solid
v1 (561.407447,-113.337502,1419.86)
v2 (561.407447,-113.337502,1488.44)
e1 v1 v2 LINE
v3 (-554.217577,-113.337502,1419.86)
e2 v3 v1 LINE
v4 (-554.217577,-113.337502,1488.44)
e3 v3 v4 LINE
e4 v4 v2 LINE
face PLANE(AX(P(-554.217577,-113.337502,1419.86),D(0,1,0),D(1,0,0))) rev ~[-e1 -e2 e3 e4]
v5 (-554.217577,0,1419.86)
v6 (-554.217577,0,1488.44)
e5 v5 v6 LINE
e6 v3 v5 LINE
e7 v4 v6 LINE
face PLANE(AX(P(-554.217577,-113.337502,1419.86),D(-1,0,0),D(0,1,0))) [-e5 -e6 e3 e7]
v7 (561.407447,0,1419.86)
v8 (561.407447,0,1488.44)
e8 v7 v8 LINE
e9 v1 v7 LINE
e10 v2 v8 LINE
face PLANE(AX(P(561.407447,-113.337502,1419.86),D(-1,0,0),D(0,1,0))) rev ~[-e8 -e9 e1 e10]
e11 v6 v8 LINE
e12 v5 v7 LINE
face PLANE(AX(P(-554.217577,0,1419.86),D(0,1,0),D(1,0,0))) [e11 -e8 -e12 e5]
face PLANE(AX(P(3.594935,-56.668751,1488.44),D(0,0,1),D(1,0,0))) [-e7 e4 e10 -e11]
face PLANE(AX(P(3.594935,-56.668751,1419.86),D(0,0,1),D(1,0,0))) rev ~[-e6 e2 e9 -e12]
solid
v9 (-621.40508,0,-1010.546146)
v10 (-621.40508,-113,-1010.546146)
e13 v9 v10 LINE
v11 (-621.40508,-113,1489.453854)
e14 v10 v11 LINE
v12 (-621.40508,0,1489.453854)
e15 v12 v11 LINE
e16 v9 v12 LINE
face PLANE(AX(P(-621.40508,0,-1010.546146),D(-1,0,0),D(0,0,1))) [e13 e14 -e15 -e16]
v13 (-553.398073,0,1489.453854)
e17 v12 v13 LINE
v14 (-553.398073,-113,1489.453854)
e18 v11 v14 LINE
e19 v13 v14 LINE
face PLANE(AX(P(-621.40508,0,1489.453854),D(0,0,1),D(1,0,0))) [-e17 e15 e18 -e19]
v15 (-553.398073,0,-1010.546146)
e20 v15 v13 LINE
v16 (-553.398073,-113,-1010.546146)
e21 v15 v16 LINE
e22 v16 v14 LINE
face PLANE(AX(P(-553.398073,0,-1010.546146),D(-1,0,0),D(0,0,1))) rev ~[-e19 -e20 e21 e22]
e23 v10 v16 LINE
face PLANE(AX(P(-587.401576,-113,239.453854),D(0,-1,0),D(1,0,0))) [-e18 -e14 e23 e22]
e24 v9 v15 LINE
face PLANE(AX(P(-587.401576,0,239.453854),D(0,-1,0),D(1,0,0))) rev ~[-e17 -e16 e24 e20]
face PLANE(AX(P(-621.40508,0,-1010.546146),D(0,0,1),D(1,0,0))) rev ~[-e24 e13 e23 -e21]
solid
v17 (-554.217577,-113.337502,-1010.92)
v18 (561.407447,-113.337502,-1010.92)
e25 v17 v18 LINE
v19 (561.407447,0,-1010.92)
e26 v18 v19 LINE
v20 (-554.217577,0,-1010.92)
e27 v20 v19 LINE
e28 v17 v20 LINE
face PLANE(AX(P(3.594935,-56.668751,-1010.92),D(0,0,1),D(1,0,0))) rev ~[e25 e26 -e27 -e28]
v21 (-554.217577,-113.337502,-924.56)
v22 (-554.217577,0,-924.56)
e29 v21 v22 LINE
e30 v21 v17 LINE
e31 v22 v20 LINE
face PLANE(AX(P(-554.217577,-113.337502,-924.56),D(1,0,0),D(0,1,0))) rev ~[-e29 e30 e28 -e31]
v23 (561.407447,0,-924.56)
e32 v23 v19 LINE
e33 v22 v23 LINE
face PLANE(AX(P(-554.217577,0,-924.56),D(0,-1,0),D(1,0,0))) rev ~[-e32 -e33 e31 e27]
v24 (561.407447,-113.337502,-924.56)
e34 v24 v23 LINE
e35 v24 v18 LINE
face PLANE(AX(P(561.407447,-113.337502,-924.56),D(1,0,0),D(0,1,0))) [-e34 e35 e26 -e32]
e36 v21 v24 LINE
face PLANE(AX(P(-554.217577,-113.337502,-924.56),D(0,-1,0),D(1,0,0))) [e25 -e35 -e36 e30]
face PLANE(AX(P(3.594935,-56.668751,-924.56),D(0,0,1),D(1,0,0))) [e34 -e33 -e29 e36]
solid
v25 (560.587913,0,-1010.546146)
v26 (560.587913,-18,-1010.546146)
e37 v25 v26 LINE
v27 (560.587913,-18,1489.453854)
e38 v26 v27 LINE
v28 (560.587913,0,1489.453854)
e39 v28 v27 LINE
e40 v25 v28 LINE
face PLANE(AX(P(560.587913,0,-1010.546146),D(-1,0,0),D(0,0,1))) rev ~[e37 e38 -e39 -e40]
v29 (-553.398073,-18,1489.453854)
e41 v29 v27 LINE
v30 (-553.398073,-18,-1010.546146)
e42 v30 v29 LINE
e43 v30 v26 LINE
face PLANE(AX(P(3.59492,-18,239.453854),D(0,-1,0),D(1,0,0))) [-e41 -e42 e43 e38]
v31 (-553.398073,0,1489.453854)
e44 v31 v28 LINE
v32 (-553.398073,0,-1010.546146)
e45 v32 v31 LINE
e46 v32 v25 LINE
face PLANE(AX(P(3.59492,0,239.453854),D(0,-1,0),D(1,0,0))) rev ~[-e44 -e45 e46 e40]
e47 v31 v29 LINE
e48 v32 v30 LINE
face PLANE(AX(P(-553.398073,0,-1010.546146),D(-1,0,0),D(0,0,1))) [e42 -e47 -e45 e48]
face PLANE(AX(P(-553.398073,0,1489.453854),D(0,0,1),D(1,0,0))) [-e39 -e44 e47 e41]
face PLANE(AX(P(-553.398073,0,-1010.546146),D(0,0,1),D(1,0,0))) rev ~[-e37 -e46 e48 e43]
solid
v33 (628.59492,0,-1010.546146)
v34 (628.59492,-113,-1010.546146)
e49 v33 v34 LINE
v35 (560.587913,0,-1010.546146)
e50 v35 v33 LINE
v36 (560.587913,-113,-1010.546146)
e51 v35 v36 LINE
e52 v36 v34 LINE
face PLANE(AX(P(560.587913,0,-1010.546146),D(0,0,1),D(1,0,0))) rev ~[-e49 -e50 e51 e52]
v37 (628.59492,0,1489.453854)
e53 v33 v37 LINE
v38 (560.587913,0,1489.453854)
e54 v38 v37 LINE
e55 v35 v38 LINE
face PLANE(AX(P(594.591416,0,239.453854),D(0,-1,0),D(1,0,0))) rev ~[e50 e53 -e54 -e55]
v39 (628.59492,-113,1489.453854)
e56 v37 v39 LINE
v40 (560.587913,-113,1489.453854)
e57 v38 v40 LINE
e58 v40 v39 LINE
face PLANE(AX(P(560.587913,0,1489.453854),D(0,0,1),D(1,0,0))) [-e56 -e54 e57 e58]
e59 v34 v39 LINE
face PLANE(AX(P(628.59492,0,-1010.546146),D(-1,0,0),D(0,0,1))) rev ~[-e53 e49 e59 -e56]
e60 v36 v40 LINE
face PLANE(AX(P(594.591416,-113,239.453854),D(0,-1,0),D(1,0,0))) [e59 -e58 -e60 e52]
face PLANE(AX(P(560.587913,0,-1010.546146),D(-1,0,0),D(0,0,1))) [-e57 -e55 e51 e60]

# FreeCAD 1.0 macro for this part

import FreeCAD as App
import Part
import Sketcher
Q = App.Units.Quantity

doc = App.newDocument("Part")
body = doc.addObject("PartDesign::Body", "Body")

# Sketch on XZ plane
sketch1 = doc.addObject("Sketcher::SketchObject", "Sketch")
body.addObject(sketch1)
sketch1.AttachmentSupport = (doc.XZ_Plane, [""])
sketch1.MapMode = "FlatFace"
sketch1.addGeometry(Part.LineSegment(App.Vector(-621.40508, 1489.453854, 0), App.Vector(-621.40508, -1010.546146, 0)), False)
sketch1.addGeometry(Part.LineSegment(App.Vector(-621.40508, -1010.546146, 0), App.Vector(-553.398073, -1010.546146, 0)), False)
sketch1.addGeometry(Part.LineSegment(App.Vector(-553.398073, -1010.546146, 0), App.Vector(-553.398073, 1489.453854, 0)), False)
sketch1.addGeometry(Part.LineSegment(App.Vector(-553.398073, 1489.453854, 0), App.Vector(-621.40508, 1489.453854, 0)), False)
sketch1.addConstraint(Sketcher.Constraint("Coincident", 0, 2, 1, 1))
sketch1.addConstraint(Sketcher.Constraint("Coincident", 1, 2, 2, 1))
sketch1.addConstraint(Sketcher.Constraint("Coincident", 2, 2, 3, 1))
sketch1.addConstraint(Sketcher.Constraint("Coincident", 3, 2, 0, 1))
sketch1.addConstraint(Sketcher.Constraint("Vertical", 0))
sketch1.addConstraint(Sketcher.Constraint("Horizontal", 1))
sketch1.addConstraint(Sketcher.Constraint("Vertical", 2))
sketch1.addConstraint(Sketcher.Constraint("Horizontal", 3))
sketch1.addConstraint(Sketcher.Constraint("DistanceY", 0, 2, 0, 1, Q("2500 mm")))
sketch1.addConstraint(Sketcher.Constraint("DistanceX", 1, 1, 1, 2, Q("68.007007 mm")))
sketch1.addConstraint(Sketcher.Constraint("DistanceX", 0, 2, -1, 1, Q("621.40508 mm")))
sketch1.addConstraint(Sketcher.Constraint("DistanceY", 0, 2, -1, 1, Q("1010.546146 mm")))
pad1 = doc.addObject("PartDesign::Pad", "Pad")
body.addObject(pad1)
pad1.Profile = sketch1
pad1.Length = 113
body2 = doc.addObject("PartDesign::Body", "Body001")

# Sketch on XZ plane
sketch2 = doc.addObject("Sketcher::SketchObject", "Sketch001")
body2.addObject(sketch2)
sketch2.AttachmentSupport = (doc.getObject("XZ_Plane001"), [""])
sketch2.MapMode = "FlatFace"
sketch2.addGeometry(Part.LineSegment(App.Vector(560.587913, 1489.453854, 0), App.Vector(560.587913, -1010.546146, 0)), False)
sketch2.addGeometry(Part.LineSegment(App.Vector(560.587913, -1010.546146, 0), App.Vector(628.59492, -1010.546146, 0)), False)
sketch2.addGeometry(Part.LineSegment(App.Vector(628.59492, -1010.546146, 0), App.Vector(628.59492, 1489.453854, 0)), False)
sketch2.addGeometry(Part.LineSegment(App.Vector(628.59492, 1489.453854, 0), App.Vector(560.587913, 1489.453854, 0)), False)
sketch2.addConstraint(Sketcher.Constraint("Coincident", 0, 2, 1, 1))
sketch2.addConstraint(Sketcher.Constraint("Coincident", 1, 2, 2, 1))
sketch2.addConstraint(Sketcher.Constraint("Coincident", 2, 2, 3, 1))
sketch2.addConstraint(Sketcher.Constraint("Coincident", 3, 2, 0, 1))
sketch2.addConstraint(Sketcher.Constraint("Vertical", 0))
sketch2.addConstraint(Sketcher.Constraint("Horizontal", 1))
sketch2.addConstraint(Sketcher.Constraint("Vertical", 2))
sketch2.addConstraint(Sketcher.Constraint("Horizontal", 3))
sketch2.addConstraint(Sketcher.Constraint("DistanceY", 0, 2, 0, 1, Q("2500 mm")))
sketch2.addConstraint(Sketcher.Constraint("DistanceX", 1, 1, 1, 2, Q("68.007007 mm")))
sketch2.addConstraint(Sketcher.Constraint("DistanceX", -1, 1, 1, 2, Q("628.59492 mm")))
sketch2.addConstraint(Sketcher.Constraint("DistanceY", 0, 2, -1, 1, Q("1010.546146 mm")))
pad2 = doc.addObject("PartDesign::Pad", "Pad001")
body2.addObject(pad2)
pad2.Profile = sketch2
pad2.Length = 113
body3 = doc.addObject("PartDesign::Body", "Body002")

# Sketch on XZ plane
sketch3 = doc.addObject("Sketcher::SketchObject", "Sketch002")
body3.addObject(sketch3)
sketch3.AttachmentSupport = (doc.getObject("XZ_Plane002"), [""])
sketch3.MapMode = "FlatFace"
sketch3.addGeometry(Part.LineSegment(App.Vector(-553.398073, 1489.453854, 0), App.Vector(-553.398073, -1010.546146, 0)), False)
sketch3.addGeometry(Part.LineSegment(App.Vector(-553.398073, -1010.546146, 0), App.Vector(560.587913, -1010.546146, 0)), False)
sketch3.addGeometry(Part.LineSegment(App.Vector(560.587913, -1010.546146, 0), App.Vector(560.587913, 1489.453854, 0)), False)
sketch3.addGeometry(Part.LineSegment(App.Vector(560.587913, 1489.453854, 0), App.Vector(-553.398073, 1489.453854, 0)), False)
sketch3.addConstraint(Sketcher.Constraint("Coincident", 0, 2, 1, 1))
sketch3.addConstraint(Sketcher.Constraint("Coincident", 1, 2, 2, 1))
sketch3.addConstraint(Sketcher.Constraint("Coincident", 2, 2, 3, 1))
sketch3.addConstraint(Sketcher.Constraint("Coincident", 3, 2, 0, 1))
sketch3.addConstraint(Sketcher.Constraint("Vertical", 0))
sketch3.addConstraint(Sketcher.Constraint("Horizontal", 1))
sketch3.addConstraint(Sketcher.Constraint("Vertical", 2))
sketch3.addConstraint(Sketcher.Constraint("Horizontal", 3))
sketch3.addConstraint(Sketcher.Constraint("DistanceY", 0, 2, 0, 1, Q("2500 mm")))
sketch3.addConstraint(Sketcher.Constraint("DistanceX", 1, 1, 1, 2, Q("1113.985986 mm")))
sketch3.addConstraint(Sketcher.Constraint("DistanceX", 0, 2, -1, 1, Q("553.398073 mm")))
sketch3.addConstraint(Sketcher.Constraint("DistanceY", 0, 2, -1, 1, Q("1010.546146 mm")))
pad3 = doc.addObject("PartDesign::Pad", "Pad002")
body3.addObject(pad3)
pad3.Profile = sketch3
pad3.Length = 18
body4 = doc.addObject("PartDesign::Body", "Body003")

# Sketch on XY plane
sketch4 = doc.addObject("Sketcher::SketchObject", "Sketch003")
body4.addObject(sketch4)
sketch4.AttachmentSupport = (doc.getObject("XY_Plane003"), [""])
sketch4.MapMode = "FlatFace"
sketch4.AttachmentOffset = App.Placement(App.Vector(0, 0, 1419.86), App.Rotation())
sketch4.addGeometry(Part.LineSegment(App.Vector(-554.217577, 0, 0), App.Vector(-554.217577, -113.337502, 0)), False)
sketch4.addGeometry(Part.LineSegment(App.Vector(-554.217577, -113.337502, 0), App.Vector(561.407447, -113.337502, 0)), False)
sketch4.addGeometry(Part.LineSegment(App.Vector(561.407447, -113.337502, 0), App.Vector(561.407447, 0, 0)), False)
sketch4.addGeometry(Part.LineSegment(App.Vector(561.407447, 0, 0), App.Vector(-554.217577, 0, 0)), False)
sketch4.addConstraint(Sketcher.Constraint("Coincident", 0, 2, 1, 1))
sketch4.addConstraint(Sketcher.Constraint("Coincident", 1, 2, 2, 1))
sketch4.addConstraint(Sketcher.Constraint("Coincident", 2, 2, 3, 1))
sketch4.addConstraint(Sketcher.Constraint("Coincident", 3, 2, 0, 1))
sketch4.addConstraint(Sketcher.Constraint("Vertical", 0))
sketch4.addConstraint(Sketcher.Constraint("Horizontal", 1))
sketch4.addConstraint(Sketcher.Constraint("Vertical", 2))
sketch4.addConstraint(Sketcher.Constraint("Horizontal", 3))
sketch4.addConstraint(Sketcher.Constraint("PointOnObject", 2, 2, -1))
sketch4.addConstraint(Sketcher.Constraint("DistanceY", 0, 2, 0, 1, Q("113.337502 mm")))
sketch4.addConstraint(Sketcher.Constraint("DistanceX", 1, 1, 1, 2, Q("1115.625024 mm")))
sketch4.addConstraint(Sketcher.Constraint("DistanceX", 0, 2, -1, 1, Q("554.217577 mm")))
pad4 = doc.addObject("PartDesign::Pad", "Pad003")
body4.addObject(pad4)
pad4.Profile = sketch4
pad4.Length = 68.58
body5 = doc.addObject("PartDesign::Body", "Body004")

# Sketch on XY plane
sketch5 = doc.addObject("Sketcher::SketchObject", "Sketch004")
body5.addObject(sketch5)
sketch5.AttachmentSupport = (doc.getObject("XY_Plane004"), [""])
sketch5.MapMode = "FlatFace"
sketch5.AttachmentOffset = App.Placement(App.Vector(0, 0, -924.56), App.Rotation())
sketch5.addGeometry(Part.LineSegment(App.Vector(-554.217577, 0, 0), App.Vector(-554.217577, -113.337502, 0)), False)
sketch5.addGeometry(Part.LineSegment(App.Vector(-554.217577, -113.337502, 0), App.Vector(561.407447, -113.337502, 0)), False)
sketch5.addGeometry(Part.LineSegment(App.Vector(561.407447, -113.337502, 0), App.Vector(561.407447, 0, 0)), False)
sketch5.addGeometry(Part.LineSegment(App.Vector(561.407447, 0, 0), App.Vector(-554.217577, 0, 0)), False)
sketch5.addConstraint(Sketcher.Constraint("Coincident", 0, 2, 1, 1))
sketch5.addConstraint(Sketcher.Constraint("Coincident", 1, 2, 2, 1))
sketch5.addConstraint(Sketcher.Constraint("Coincident", 2, 2, 3, 1))
sketch5.addConstraint(Sketcher.Constraint("Coincident", 3, 2, 0, 1))
sketch5.addConstraint(Sketcher.Constraint("Vertical", 0))
sketch5.addConstraint(Sketcher.Constraint("Horizontal", 1))
sketch5.addConstraint(Sketcher.Constraint("Vertical", 2))
sketch5.addConstraint(Sketcher.Constraint("Horizontal", 3))
sketch5.addConstraint(Sketcher.Constraint("PointOnObject", 2, 2, -1))
sketch5.addConstraint(Sketcher.Constraint("DistanceY", 0, 2, 0, 1, Q("113.337502 mm")))
sketch5.addConstraint(Sketcher.Constraint("DistanceX", 1, 1, 1, 2, Q("1115.625024 mm")))
sketch5.addConstraint(Sketcher.Constraint("DistanceX", 0, 2, -1, 1, Q("554.217577 mm")))
pad5 = doc.addObject("PartDesign::Pad", "Pad004")
body5.addObject(pad5)
pad5.Profile = sketch5
pad5.Length = 86.36
pad5.Reversed = True

doc.recompute()
